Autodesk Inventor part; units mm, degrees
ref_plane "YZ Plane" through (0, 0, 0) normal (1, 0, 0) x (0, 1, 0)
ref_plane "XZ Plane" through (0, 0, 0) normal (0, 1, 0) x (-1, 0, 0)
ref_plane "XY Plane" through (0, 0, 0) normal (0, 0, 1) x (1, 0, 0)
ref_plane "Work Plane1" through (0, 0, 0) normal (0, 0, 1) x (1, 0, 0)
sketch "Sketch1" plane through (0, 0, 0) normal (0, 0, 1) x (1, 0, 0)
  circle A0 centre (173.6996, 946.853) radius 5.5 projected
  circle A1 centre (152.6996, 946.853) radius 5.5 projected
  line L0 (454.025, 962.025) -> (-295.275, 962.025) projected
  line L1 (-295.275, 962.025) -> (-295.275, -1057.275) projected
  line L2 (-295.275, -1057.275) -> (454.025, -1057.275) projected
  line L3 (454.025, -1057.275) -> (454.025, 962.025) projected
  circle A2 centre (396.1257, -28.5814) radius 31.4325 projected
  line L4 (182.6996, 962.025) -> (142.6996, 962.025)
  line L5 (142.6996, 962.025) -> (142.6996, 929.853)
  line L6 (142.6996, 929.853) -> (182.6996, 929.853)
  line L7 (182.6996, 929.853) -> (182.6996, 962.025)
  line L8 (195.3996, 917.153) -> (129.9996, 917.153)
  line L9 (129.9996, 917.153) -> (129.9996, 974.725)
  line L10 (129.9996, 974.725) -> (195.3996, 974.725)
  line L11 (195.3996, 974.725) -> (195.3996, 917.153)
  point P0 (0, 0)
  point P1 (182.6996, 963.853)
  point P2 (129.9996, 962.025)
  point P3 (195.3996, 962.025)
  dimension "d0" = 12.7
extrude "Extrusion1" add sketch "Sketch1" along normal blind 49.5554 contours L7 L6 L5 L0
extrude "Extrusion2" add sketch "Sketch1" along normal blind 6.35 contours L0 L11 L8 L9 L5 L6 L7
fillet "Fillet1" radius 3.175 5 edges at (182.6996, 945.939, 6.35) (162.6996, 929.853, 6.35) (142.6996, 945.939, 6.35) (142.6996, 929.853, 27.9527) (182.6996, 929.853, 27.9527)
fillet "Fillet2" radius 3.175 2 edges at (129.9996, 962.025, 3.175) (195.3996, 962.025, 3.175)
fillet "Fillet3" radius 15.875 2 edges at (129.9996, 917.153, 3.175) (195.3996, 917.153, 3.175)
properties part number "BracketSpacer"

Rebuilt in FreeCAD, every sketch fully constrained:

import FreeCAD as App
import Part
import Sketcher

V = App.Vector
Q = App.Units.Quantity


def edges_at(feature, points):
    """Names of the edges that pass closest to the given points."""
    edges = feature.Shape.Edges
    near = lambda p: min(range(len(edges)), key=lambda i: edges[i].distToShape(Part.Vertex(*p))[0])
    return sorted({f"Edge{near(p) + 1}" for p in points})


def add_polygon(sketch, points):
    """Adds a closed chain of lines whose ends are joined by coincident constraints."""
    first, n = sketch.GeometryCount, len(points)
    for a, b in zip(points, points[1:] + points[:1]):
        sketch.addGeometry(Part.LineSegment(App.Vector(*a, 0), App.Vector(*b, 0)), False)
    for i in range(n):
        sketch.addConstraint(Sketcher.Constraint("Coincident", first + i, 2, first + (i + 1) % n, 1))

doc = App.newDocument("Part")
params = doc.addObject("Spreadsheet::Sheet", "Params")
for row, (alias, value) in enumerate([
    ("pad1_length", "1.951 in"),
    ("sketch2_width", "0.5 in"),
    ("pad2_length", "0.25 in"),
    ("fillet_radius", "0.125 in"),
    ("fillet2_radius", "0.125 in"),
    ("fillet3_radius", "0.625 in"),
], start=1):
    params.set(f"A{row}", alias)
    params.set(f"B{row}", "=" + value)
    params.setAlias(f"B{row}", alias)

body = doc.addObject("PartDesign::Body", "Body")

# Sketch on XY plane
sketch1 = doc.addObject("Sketcher::SketchObject", "Sketch")
body.addObject(sketch1)
sketch1.AttachmentSupport = (doc.XY_Plane, [""])
sketch1.MapMode = "FlatFace"
add_polygon(sketch1, [(183, 930), (183, 962), (143, 962), (143, 930)])  # lines 0-3
sketch1.addGeometry(Part.Circle(V(153, 947, 0), V(0, 0, 1), 6), False)  # 4
sketch1.addGeometry(Part.Circle(V(174, 947, 0), V(0, 0, 1), 6), False)  # 5
sketch1.addConstraint([
    Sketcher.Constraint("Vertical", 0),
    Sketcher.Constraint("Horizontal", 1),
    Sketcher.Constraint("Vertical", 2),
    Sketcher.Constraint("Horizontal", 3),
    Sketcher.Constraint("Equal", 4, 5),
    Sketcher.Constraint("Horizontal", 4, 3, 5, 3),
    Sketcher.Constraint("Diameter", 4, 11.0),
    Sketcher.Constraint("DistanceX", 1, 2, 1, 1, Q("1.5748 in")),
    Sketcher.Constraint("DistanceY", -1, 1, 0, 2, Q("37.875 in")),
    Sketcher.Constraint("DistanceY", 0, 1, 0, 2, 32.172),
    Sketcher.Constraint("DistanceX", -1, 1, 4, 3, Q("6.0118 in")),
    Sketcher.Constraint("DistanceX", -1, 1, 0, 2, Q("7.1929 in")),
    Sketcher.Constraint("DistanceY", 2, 2, 4, 3, Q("0.6693 in")),
    Sketcher.Constraint("DistanceX", -1, 1, 5, 3, 173.6996),
])
pad1 = doc.addObject("PartDesign::Pad", "Pad")
body.addObject(pad1)
pad1.Profile = sketch1
pad1.setExpression("Length", "Params.pad1_length")

# Sketch on XY plane
sketch2 = doc.addObject("Sketcher::SketchObject", "Sketch001")
body.addObject(sketch2)
sketch2.AttachmentSupport = (doc.XY_Plane, [""])
sketch2.MapMode = "FlatFace"
add_polygon(sketch2, [(195, 962), (183, 962), (183, 930), (143, 930), (143, 962), (130, 962), (130, 917), (195, 917)])  # lines 0-7
sketch2.addConstraint([
    Sketcher.Constraint("Horizontal", 0),
    Sketcher.Constraint("Vertical", 1),
    Sketcher.Constraint("Horizontal", 2),
    Sketcher.Constraint("Vertical", 3),
    Sketcher.Constraint("Horizontal", 4),
    Sketcher.Constraint("Vertical", 5),
    Sketcher.Constraint("Horizontal", 6),
    Sketcher.Constraint("Vertical", 7),
    Sketcher.Constraint("Horizontal", 0, 2, 3, 2),
    Sketcher.Constraint("Equal", 0, 4),
    Sketcher.Constraint("DistanceX", 0, 2, 0, 1, Q("0.5 in")),
    Sketcher.Constraint("DistanceY", 5, 2, 2, 2, Q("0.5 in")),
    Sketcher.Constraint("DistanceX", 2, 2, 2, 1, Q("1.5748 in")),
    Sketcher.Constraint("DistanceY", -1, 1, 0, 2, Q("37.875 in")),
    Sketcher.Constraint("DistanceY", 1, 2, 1, 1, 32.172),
    Sketcher.Constraint("DistanceX", -1, 1, 0, 2, Q("7.1929 in")),
])
sketch2.setExpression("Constraints[18]", "Params.sketch2_width")
pad2 = doc.addObject("PartDesign::Pad", "Pad001")
body.addObject(pad2)
pad2.Profile = sketch2
pad2.setExpression("Length", "Params.pad2_length")
doc.recompute()

fillet = doc.addObject("PartDesign::Fillet", "Fillet")
body.addObject(fillet)
fillet.Base = (pad2, edges_at(pad2, [
    (182.7, 945.939, 6.35),
    (162.7, 929.853, 6.35),
    (142.7, 945.939, 6.35),
    (142.7, 929.853, 27.953),
    (182.7, 929.853, 27.953),
]))
fillet.setExpression("Radius", "Params.fillet_radius")
doc.recompute()

fillet2 = doc.addObject("PartDesign::Fillet", "Fillet001")
body.addObject(fillet2)
fillet2.Base = (fillet, edges_at(fillet, [(130, 962.025, 3.175), (195.4, 962.025, 3.175)]))
fillet2.setExpression("Radius", "Params.fillet2_radius")
doc.recompute()

fillet3 = doc.addObject("PartDesign::Fillet", "Fillet002")
body.addObject(fillet3)
fillet3.Base = (fillet2, edges_at(fillet2, [(130, 917.153, 3.175), (195.4, 917.153, 3.175)]))
fillet3.setExpression("Radius", "Params.fillet3_radius")

doc.recompute()
